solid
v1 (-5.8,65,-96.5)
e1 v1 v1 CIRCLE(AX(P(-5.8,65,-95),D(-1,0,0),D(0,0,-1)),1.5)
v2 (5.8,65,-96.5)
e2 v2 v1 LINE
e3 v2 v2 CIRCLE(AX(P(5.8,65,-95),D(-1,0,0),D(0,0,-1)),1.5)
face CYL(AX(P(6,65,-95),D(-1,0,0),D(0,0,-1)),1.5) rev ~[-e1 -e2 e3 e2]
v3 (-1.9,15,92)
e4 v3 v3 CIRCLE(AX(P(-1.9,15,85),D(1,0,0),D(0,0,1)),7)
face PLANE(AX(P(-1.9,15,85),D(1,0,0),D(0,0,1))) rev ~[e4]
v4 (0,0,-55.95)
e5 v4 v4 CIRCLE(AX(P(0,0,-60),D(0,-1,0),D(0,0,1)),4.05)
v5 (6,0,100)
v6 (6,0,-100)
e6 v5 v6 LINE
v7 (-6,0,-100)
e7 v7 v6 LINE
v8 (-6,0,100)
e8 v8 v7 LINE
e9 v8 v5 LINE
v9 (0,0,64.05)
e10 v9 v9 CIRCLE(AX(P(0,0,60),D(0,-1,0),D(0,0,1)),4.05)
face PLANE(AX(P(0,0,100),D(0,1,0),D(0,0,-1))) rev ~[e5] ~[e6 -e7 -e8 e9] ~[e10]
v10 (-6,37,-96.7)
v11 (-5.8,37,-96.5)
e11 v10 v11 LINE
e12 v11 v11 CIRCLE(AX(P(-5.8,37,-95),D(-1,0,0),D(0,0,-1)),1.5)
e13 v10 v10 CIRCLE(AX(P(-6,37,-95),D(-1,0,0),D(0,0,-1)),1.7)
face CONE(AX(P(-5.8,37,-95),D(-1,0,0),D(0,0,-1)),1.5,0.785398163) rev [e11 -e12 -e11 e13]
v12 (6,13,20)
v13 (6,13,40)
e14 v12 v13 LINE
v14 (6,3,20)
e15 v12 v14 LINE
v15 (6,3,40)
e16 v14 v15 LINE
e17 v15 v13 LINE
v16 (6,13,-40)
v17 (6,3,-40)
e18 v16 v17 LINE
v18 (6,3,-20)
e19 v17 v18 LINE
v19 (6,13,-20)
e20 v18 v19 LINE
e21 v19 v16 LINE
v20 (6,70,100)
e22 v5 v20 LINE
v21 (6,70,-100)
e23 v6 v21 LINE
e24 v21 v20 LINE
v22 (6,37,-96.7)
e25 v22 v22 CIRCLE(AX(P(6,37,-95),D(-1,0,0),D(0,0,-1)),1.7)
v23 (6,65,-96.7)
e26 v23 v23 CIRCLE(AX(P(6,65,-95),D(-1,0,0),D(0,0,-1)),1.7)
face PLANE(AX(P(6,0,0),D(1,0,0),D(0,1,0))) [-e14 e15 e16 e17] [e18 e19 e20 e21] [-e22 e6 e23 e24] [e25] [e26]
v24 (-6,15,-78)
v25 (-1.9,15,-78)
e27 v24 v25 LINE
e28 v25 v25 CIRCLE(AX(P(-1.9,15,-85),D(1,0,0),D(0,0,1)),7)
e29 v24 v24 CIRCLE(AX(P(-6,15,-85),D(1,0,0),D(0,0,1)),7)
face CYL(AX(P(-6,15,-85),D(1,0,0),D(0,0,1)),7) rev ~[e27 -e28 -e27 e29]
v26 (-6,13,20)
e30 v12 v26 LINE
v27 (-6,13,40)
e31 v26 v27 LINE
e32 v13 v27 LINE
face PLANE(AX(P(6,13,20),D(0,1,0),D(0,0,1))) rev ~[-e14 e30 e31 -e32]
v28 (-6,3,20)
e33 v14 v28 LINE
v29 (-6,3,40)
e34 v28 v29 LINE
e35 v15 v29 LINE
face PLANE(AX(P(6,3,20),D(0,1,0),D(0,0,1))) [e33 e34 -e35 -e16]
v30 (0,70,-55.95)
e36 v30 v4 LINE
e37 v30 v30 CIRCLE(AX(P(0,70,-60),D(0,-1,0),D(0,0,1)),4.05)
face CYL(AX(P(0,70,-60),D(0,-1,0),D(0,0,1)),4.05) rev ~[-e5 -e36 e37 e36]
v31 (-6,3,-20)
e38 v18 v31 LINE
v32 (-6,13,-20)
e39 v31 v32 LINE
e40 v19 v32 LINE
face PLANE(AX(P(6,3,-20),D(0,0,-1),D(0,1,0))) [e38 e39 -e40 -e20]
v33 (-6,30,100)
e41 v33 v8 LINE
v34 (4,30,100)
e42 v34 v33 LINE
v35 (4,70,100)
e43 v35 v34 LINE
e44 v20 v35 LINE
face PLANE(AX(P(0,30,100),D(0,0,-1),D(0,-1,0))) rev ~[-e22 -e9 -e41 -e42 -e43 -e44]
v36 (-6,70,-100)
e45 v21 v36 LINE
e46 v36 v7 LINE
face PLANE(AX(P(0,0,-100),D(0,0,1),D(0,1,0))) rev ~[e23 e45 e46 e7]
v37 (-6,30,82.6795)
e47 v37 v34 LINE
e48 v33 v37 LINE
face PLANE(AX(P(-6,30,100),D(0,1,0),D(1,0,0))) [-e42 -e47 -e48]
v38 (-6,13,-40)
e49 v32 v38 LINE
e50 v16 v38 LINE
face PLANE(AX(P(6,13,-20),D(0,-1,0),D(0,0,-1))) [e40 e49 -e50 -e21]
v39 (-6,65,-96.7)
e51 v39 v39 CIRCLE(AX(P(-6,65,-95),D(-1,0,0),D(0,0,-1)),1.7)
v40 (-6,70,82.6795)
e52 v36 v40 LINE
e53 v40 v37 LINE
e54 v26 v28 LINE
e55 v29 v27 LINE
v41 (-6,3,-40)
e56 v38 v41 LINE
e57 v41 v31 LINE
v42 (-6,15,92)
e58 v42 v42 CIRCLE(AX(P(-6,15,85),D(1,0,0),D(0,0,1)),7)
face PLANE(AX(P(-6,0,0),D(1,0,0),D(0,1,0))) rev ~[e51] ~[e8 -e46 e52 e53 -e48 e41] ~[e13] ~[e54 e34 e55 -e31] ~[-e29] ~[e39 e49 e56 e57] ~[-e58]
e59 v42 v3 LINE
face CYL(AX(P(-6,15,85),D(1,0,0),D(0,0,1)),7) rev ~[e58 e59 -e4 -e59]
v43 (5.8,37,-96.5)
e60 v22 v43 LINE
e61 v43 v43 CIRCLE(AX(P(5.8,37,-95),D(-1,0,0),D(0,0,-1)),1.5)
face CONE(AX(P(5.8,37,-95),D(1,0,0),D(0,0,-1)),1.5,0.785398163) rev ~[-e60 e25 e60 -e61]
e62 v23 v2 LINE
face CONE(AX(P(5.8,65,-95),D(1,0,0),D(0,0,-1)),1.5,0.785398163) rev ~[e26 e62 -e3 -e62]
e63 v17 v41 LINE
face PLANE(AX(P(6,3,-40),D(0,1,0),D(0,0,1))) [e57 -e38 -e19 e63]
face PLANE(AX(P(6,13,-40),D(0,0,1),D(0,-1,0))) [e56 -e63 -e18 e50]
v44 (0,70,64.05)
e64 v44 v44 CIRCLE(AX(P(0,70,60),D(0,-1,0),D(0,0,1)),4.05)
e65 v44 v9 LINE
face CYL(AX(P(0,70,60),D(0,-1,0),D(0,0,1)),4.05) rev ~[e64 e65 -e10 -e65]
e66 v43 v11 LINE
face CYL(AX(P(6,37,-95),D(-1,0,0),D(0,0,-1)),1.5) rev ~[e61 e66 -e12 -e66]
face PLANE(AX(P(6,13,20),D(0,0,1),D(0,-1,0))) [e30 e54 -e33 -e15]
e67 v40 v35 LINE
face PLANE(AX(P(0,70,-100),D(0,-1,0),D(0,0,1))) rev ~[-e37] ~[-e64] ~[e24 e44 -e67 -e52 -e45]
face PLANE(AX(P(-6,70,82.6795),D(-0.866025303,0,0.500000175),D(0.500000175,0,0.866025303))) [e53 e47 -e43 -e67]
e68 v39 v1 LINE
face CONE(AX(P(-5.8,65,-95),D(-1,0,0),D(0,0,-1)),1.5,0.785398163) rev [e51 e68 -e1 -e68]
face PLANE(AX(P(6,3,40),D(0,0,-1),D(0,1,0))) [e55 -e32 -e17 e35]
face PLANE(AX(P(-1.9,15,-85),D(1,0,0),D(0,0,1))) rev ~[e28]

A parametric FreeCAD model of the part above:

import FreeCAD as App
import Part
import Sketcher

V = App.Vector
Q = App.Units.Quantity


def edges_at(feature, points):
    """Names of the edges that pass closest to the given points."""
    edges = feature.Shape.Edges
    near = lambda p: min(range(len(edges)), key=lambda i: edges[i].distToShape(Part.Vertex(*p))[0])
    return sorted({f"Edge{near(p) + 1}" for p in points})

doc = App.newDocument("Part")
body = doc.addObject("PartDesign::Body", "Body")

# Sketch on YZ plane
sketch1 = doc.addObject("Sketcher::SketchObject", "Sketch")
body.addObject(sketch1)
sketch1.AttachmentSupport = (doc.YZ_Plane, [""])
sketch1.MapMode = "FlatFace"
sketch1.addGeometry([
    Part.LineSegment(V(0, 100, 0), V(0, -100, 0)),
    Part.LineSegment(V(0, -100, 0), V(70, -100, 0)),
    Part.LineSegment(V(70, -100, 0), V(70, 100, 0)),
    Part.LineSegment(V(70, 100, 0), V(0, 100, 0)),
], False)
sketch1.addConstraint([
    Sketcher.Constraint("Coincident", 0, 2, 1, 1),
    Sketcher.Constraint("Coincident", 1, 2, 2, 1),
    Sketcher.Constraint("Coincident", 2, 2, 3, 1),
    Sketcher.Constraint("Coincident", 3, 2, 0, 1),
    Sketcher.Constraint("Vertical", 0),
    Sketcher.Constraint("Horizontal", 1),
    Sketcher.Constraint("Vertical", 2),
    Sketcher.Constraint("Horizontal", 3),
    Sketcher.Constraint("Symmetric", 0, 2, 3, 2, -1, 1),
    Sketcher.Constraint("DistanceY", 0, 2, 0, 1, 200.0),
    Sketcher.Constraint("DistanceX", 1, 1, 1, 2, 70.0),
])
pad1 = doc.addObject("PartDesign::Pad", "Pad")
body.addObject(pad1)
pad1.Profile = sketch1
pad1.Length = 12
pad1.Midplane = True

# Sketch on YZ plane
sketch2 = doc.addObject("Sketcher::SketchObject", "Sketch001")
body.addObject(sketch2)
sketch2.AttachmentSupport = (doc.YZ_Plane, [""])
sketch2.MapMode = "FlatFace"
sketch2.AttachmentOffset = App.Placement(V(0, 0, 6), App.Rotation())
sketch2.addGeometry([
    Part.LineSegment(V(3, 20, 0), V(13, 20, 0)),  # 0
    Part.LineSegment(V(13, 20, 0), V(13, 40, 0)),  # 1
    Part.LineSegment(V(13, 40, 0), V(3, 40, 0)),  # 2
    Part.LineSegment(V(3, 40, 0), V(3, 20, 0)),  # 3
    Part.LineSegment(V(13, -40, 0), V(13, -20, 0)),  # 4
    Part.LineSegment(V(13, -20, 0), V(3, -20, 0)),  # 5
    Part.LineSegment(V(3, -20, 0), V(3, -40, 0)),  # 6
    Part.LineSegment(V(3, -40, 0), V(13, -40, 0)),  # 7
], False)
sketch2.addConstraint([
    Sketcher.Constraint("Coincident", 0, 2, 1, 1),
    Sketcher.Constraint("Coincident", 1, 2, 2, 1),
    Sketcher.Constraint("Coincident", 2, 2, 3, 1),
    Sketcher.Constraint("Coincident", 3, 2, 0, 1),
    Sketcher.Constraint("Coincident", 4, 2, 5, 1),
    Sketcher.Constraint("Coincident", 5, 2, 6, 1),
    Sketcher.Constraint("Coincident", 6, 2, 7, 1),
    Sketcher.Constraint("Coincident", 7, 2, 4, 1),
    Sketcher.Constraint("Horizontal", 0),
    Sketcher.Constraint("Vertical", 1),
    Sketcher.Constraint("Horizontal", 2),
    Sketcher.Constraint("Vertical", 3),
    Sketcher.Constraint("Vertical", 4),
    Sketcher.Constraint("Horizontal", 5),
    Sketcher.Constraint("Vertical", 6),
    Sketcher.Constraint("Horizontal", 7),
    Sketcher.Constraint("Symmetric", 0, 2, 4, 2, -1),
    Sketcher.Constraint("Symmetric", 2, 2, 6, 2, -1),
    Sketcher.Constraint("DistanceX", 0, 1, 0, 2, 10.0),
    Sketcher.Constraint("DistanceY", 1, 1, 1, 2, 20.0),
    Sketcher.Constraint("DistanceY", -1, 1, 0, 2, 20.0),
    Sketcher.Constraint("DistanceX", -1, 1, 2, 2, 3.0),
])
pocket1 = doc.addObject("PartDesign::Pocket", "Pocket")
body.addObject(pocket1)
pocket1.Profile = sketch2
pocket1.Length = 12

# Sketch on YZ plane
sketch3 = doc.addObject("Sketcher::SketchObject", "Sketch002")
body.addObject(sketch3)
sketch3.AttachmentSupport = (doc.YZ_Plane, [""])
sketch3.MapMode = "FlatFace"
sketch3.AttachmentOffset = App.Placement(V(0, 0, -6), App.Rotation())
sketch3.addGeometry([
    Part.Circle(V(15, -85, 0), V(0, 0, 1), 7),
    Part.Circle(V(15, 85, 0), V(0, 0, 1), 7),
], False)
sketch3.addConstraint([
    Sketcher.Constraint("Equal", 0, 1),
    Sketcher.Constraint("Symmetric", 0, 3, 1, 3, -1),
    Sketcher.Constraint("Diameter", 0, 14.0),
    Sketcher.Constraint("DistanceX", -1, 1, 0, 3, 15.0),
    Sketcher.Constraint("DistanceY", 0, 3, -1, 1, 85.0),
])
doc.recompute()
hole = doc.addObject("PartDesign::Hole", "Hole")
body.addObject(hole)
hole.Profile = sketch3
hole.ThreadType = "None"
hole.Diameter = 14
hole.DepthType = "Dimension"
hole.Depth = 4.1
hole.DrillPoint = "Flat"
hole.Reversed = True

# Sketch on YZ plane
sketch4 = doc.addObject("Sketcher::SketchObject", "Sketch003")
body.addObject(sketch4)
sketch4.AttachmentSupport = (doc.YZ_Plane, [""])
sketch4.MapMode = "FlatFace"
sketch4.AttachmentOffset = App.Placement(V(0, 0, 6), App.Rotation())
sketch4.addGeometry([
    Part.Circle(V(65, -95, 0), V(0, 0, 1), 1.5),
    Part.Circle(V(37, -95, 0), V(0, 0, 1), 1.5),
], False)
sketch4.addConstraint([
    Sketcher.Constraint("Equal", 0, 1),
    Sketcher.Constraint("Horizontal", 0, 3, 1, 3),
    Sketcher.Constraint("Diameter", 0, 3.0),
    Sketcher.Constraint("DistanceX", -1, 1, 0, 3, 65.0),
    Sketcher.Constraint("DistanceY", 0, 3, -1, 1, 95.0),
    Sketcher.Constraint("DistanceX", -1, 1, 1, 3, 37.0),
])
doc.recompute()
hole2 = doc.addObject("PartDesign::Hole", "Hole001")
body.addObject(hole2)
hole2.Profile = sketch4
hole2.ThreadType = "None"
hole2.Diameter = 3
hole2.DepthType = "Dimension"
hole2.Depth = 70
hole2.DrillPoint = "Flat"
doc.recompute()

chamfer = doc.addObject("PartDesign::Chamfer", "Chamfer")
body.addObject(chamfer)
chamfer.Base = (hole2, edges_at(hole2, [
    (6, 37, -93.5),
    (6, 65, -93.5),
    (-6, 37, -93.5),
    (-6, 65, -93.5),
]))
chamfer.Size = 0.2

# Sketch on XZ plane
sketch5 = doc.addObject("Sketcher::SketchObject", "Sketch004")
body.addObject(sketch5)
sketch5.AttachmentSupport = (doc.XZ_Plane, [""])
sketch5.MapMode = "FlatFace"
sketch5.AttachmentOffset = App.Placement(V(0, 0, -70), App.Rotation())
sketch5.addGeometry([
    Part.LineSegment(V(-6, 82.6795, 0), V(-6, 100, 0)),
    Part.LineSegment(V(-6, 100, 0), V(4, 100, 0)),
    Part.LineSegment(V(4, 100, 0), V(-6, 82.6795, 0)),
], False)
sketch5.addConstraint([
    Sketcher.Constraint("Coincident", 0, 2, 1, 1),
    Sketcher.Constraint("Coincident", 1, 2, 2, 1),
    Sketcher.Constraint("Coincident", 2, 2, 0, 1),
    Sketcher.Constraint("Vertical", 0),
    Sketcher.Constraint("Horizontal", 1),
    Sketcher.Constraint("DistanceX", 1, 1, 1, 2, 10.0),
    Sketcher.Constraint("Angle", 2, Q("-120 deg")),
    Sketcher.Constraint("DistanceX", 0, 2, -1, 1, 6.0),
    Sketcher.Constraint("DistanceY", -1, 1, 0, 2, 100.0),
])
pocket2 = doc.addObject("PartDesign::Pocket", "Pocket001")
body.addObject(pocket2)
pocket2.Profile = sketch5
pocket2.Length = 40
pocket2.Reversed = True

# Sketch on XZ plane
sketch6 = doc.addObject("Sketcher::SketchObject", "Sketch005")
body.addObject(sketch6)
sketch6.AttachmentSupport = (doc.XZ_Plane, [""])
sketch6.MapMode = "FlatFace"
sketch6.AttachmentOffset = App.Placement(V(0, 0, -70), App.Rotation())
sketch6.addGeometry([
    Part.Circle(V(0, -60, 0), V(0, 0, 1), 4.05),
    Part.Circle(V(0, 60, 0), V(0, 0, 1), 4.05),
], False)
sketch6.addConstraint([
    Sketcher.Constraint("Equal", 0, 1),
    Sketcher.Constraint("Symmetric", 0, 3, 1, 3, -1, 1),
    Sketcher.Constraint("PointOnObject", 0, 3, -2),
    Sketcher.Constraint("Diameter", 0, 8.1),
    Sketcher.Constraint("DistanceY", 0, 3, -1, 1, 60.0),
])
doc.recompute()
hole3 = doc.addObject("PartDesign::Hole", "Hole002")
body.addObject(hole3)
hole3.Profile = sketch6
hole3.ThreadType = "None"
hole3.Diameter = 8.1
hole3.DepthType = "Dimension"
hole3.Depth = 80
hole3.DrillPoint = "Flat"
hole3.Reversed = True

doc.recompute()
